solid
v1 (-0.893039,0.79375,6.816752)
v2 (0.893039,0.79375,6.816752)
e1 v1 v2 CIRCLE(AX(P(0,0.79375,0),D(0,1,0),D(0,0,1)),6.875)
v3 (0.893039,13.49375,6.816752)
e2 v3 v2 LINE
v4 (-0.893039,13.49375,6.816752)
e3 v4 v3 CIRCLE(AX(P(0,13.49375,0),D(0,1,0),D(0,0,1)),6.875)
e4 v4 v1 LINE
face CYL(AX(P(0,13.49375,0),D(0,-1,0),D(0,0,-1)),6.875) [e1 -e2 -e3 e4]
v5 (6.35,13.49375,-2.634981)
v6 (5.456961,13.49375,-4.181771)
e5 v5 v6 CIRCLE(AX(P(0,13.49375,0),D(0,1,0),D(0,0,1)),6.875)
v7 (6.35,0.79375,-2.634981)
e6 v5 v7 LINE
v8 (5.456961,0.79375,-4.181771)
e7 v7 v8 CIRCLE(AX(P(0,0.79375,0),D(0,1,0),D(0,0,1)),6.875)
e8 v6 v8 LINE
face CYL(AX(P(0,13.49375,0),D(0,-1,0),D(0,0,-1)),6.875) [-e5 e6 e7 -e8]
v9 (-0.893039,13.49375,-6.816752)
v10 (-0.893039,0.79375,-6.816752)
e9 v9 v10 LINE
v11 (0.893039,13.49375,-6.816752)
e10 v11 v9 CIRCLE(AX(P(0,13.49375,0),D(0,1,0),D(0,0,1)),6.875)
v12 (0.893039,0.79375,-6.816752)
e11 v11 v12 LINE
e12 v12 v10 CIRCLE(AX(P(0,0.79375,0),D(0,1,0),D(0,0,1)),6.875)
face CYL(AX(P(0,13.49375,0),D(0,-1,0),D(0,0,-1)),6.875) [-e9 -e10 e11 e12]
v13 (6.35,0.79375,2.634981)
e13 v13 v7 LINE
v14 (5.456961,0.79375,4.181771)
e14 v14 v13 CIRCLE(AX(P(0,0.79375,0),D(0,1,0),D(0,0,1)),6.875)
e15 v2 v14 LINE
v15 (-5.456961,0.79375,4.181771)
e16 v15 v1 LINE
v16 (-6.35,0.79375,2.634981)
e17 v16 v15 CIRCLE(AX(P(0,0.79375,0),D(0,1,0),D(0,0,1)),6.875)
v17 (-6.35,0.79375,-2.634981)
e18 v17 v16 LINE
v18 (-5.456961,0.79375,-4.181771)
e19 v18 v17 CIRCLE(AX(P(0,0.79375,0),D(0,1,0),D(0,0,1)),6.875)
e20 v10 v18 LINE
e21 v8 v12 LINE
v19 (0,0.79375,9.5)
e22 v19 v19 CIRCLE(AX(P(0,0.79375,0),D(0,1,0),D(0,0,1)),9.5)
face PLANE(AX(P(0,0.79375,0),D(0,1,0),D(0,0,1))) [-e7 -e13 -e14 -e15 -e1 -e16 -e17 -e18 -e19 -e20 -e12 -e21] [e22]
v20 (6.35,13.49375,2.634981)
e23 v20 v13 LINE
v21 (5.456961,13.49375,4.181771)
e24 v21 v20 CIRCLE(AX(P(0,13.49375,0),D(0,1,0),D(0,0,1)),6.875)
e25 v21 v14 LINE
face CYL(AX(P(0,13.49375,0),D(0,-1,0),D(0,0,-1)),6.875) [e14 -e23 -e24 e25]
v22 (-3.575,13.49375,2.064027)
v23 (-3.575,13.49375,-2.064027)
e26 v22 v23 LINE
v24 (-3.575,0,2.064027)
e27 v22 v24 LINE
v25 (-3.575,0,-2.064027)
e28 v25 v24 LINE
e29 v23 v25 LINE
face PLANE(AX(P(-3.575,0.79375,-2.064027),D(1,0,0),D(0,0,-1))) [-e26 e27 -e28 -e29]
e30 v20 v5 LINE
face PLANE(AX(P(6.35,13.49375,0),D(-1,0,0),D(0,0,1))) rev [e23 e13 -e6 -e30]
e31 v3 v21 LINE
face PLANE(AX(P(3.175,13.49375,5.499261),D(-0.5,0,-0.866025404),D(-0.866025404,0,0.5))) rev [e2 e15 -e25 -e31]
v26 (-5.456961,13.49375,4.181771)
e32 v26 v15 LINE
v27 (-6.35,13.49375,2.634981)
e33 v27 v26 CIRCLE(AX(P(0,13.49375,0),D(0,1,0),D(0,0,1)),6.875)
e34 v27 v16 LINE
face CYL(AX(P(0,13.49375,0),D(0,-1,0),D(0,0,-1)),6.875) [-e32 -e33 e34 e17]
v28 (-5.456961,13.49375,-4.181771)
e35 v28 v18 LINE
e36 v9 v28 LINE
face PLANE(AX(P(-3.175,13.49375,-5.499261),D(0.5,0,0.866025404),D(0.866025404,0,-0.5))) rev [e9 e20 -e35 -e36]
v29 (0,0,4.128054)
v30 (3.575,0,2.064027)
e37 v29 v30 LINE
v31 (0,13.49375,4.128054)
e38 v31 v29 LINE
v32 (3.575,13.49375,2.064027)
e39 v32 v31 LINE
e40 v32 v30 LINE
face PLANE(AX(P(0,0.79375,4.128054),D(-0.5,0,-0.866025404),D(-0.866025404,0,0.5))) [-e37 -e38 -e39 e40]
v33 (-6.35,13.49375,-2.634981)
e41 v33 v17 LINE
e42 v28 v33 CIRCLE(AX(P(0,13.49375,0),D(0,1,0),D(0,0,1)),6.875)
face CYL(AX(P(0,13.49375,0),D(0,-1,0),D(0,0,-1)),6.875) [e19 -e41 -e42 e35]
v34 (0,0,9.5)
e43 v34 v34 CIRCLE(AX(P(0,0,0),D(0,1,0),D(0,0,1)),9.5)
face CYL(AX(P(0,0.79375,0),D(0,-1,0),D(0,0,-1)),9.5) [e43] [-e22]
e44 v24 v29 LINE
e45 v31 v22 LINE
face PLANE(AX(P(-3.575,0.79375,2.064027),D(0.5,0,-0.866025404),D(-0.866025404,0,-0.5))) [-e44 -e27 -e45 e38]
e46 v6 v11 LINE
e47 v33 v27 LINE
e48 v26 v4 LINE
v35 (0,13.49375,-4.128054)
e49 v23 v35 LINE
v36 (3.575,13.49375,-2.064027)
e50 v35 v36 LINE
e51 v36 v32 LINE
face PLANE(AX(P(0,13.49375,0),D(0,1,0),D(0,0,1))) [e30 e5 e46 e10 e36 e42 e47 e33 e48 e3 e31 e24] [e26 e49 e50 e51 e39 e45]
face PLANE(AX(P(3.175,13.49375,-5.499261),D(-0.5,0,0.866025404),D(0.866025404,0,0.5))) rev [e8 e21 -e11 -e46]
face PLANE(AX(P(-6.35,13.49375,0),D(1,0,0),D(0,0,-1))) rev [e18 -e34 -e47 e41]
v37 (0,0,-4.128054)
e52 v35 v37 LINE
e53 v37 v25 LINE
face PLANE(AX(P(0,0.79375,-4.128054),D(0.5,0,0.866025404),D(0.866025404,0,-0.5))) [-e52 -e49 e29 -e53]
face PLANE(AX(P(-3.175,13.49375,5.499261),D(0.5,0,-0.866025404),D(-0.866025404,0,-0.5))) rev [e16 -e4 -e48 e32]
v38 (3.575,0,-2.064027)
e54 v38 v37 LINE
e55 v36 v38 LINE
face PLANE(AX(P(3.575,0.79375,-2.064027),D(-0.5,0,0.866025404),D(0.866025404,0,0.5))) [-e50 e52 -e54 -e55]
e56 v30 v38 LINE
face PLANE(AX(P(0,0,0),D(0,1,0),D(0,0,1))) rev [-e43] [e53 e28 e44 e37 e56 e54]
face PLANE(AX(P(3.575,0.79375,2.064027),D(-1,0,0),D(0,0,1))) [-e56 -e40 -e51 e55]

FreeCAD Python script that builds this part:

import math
import FreeCAD as App
import Part
import Sketcher
from FreeCAD import Vector
Q = App.Units.Quantity


def add_polygon(sketch, points):
    """Adds a closed chain of lines whose ends are joined by coincident constraints."""
    first, n = sketch.GeometryCount, len(points)
    for a, b in zip(points, points[1:] + points[:1]):
        sketch.addGeometry(Part.LineSegment(App.Vector(*a, 0), App.Vector(*b, 0)), False)
    for i in range(n):
        sketch.addConstraint(Sketcher.Constraint("Coincident", first + i, 2, first + (i + 1) % n, 1))

doc = App.newDocument("Part")
body = doc.addObject("PartDesign::Body", "Body")

# Sketch on XZ plane
sketch1 = body.newObject("Sketcher::SketchObject", "Sketch")
sketch1.AttachmentSupport = (doc.getObject("XZ_Plane"), [""])
sketch1.MapMode = "FlatFace"
sketch1.addGeometry(Part.Circle(Vector(0, 0, 0), Vector(0, 0, 1), 9.5), False)  # 0
add_polygon(sketch1, [(-3.6, -2.1), (0, -4.1), (3.6, -2.1), (3.6, 2.1), (0, 4.1), (-3.6, 2.1)])  # lines 1-6
sketch1.addConstraint([
    Sketcher.Constraint("Vertical", 3),
    Sketcher.Constraint("Vertical", 6),
    Sketcher.Constraint("Coincident", 0, 3, -1, 1),
    Sketcher.Constraint("Symmetric", 1, 2, 4, 2, -1, 1),
    Sketcher.Constraint("Symmetric", 2, 2, 5, 2, -1, 1),
    Sketcher.Constraint("PointOnObject", 1, 2, -2),
    Sketcher.Constraint("Parallel", 1, 4),
    Sketcher.Constraint("Horizontal", 3, 2, 5, 2),
    Sketcher.Constraint("Angle", 1, Q("-30 deg")),
    Sketcher.Constraint("Diameter", 0, 19.0),
    Sketcher.Constraint("DistanceX", -1, 1, 2, 2, 3.575),
    Sketcher.Constraint("DistanceY", 3, 1, 3, 2, 4.128054),
])
pad1 = body.newObject("PartDesign::Pad", "Pad")
pad1.Profile = sketch1
pad1.Length = Q("0.03125 in")
pad1.Reversed = True

# Sketch on XZ plane
sketch2 = body.newObject("Sketcher::SketchObject", "Sketch001")
sketch2.AttachmentSupport = (doc.getObject("XZ_Plane"), [""])
sketch2.MapMode = "FlatFace"
sketch2.AttachmentOffset = App.Placement(Vector(0, 0, -0.03125 * 25.4), App.Rotation())
sketch2.addGeometry(Part.ArcOfCircle(Part.Circle(Vector(0, 0, 0), Vector(0, 0, 1), 6.9), math.radians(-97.46), math.radians(-82.54)), False)  # 0
sketch2.addGeometry(Part.LineSegment(Vector(-0.9, -6.8, 0), Vector(-5.5, -4.2, 0)), False)  # 1
sketch2.addGeometry(Part.ArcOfCircle(Part.Circle(Vector(0, 0, 0), Vector(0, 0, 1), 6.9), math.radians(-157.46), math.radians(-142.54)), False)  # 2
sketch2.addGeometry(Part.LineSegment(Vector(-6.3, -2.6, 0), Vector(-6.3, 2.6, 0)), False)  # 3
sketch2.addGeometry(Part.ArcOfCircle(Part.Circle(Vector(0, 0, 0), Vector(0, 0, 1), 6.9), math.radians(142.54), math.radians(157.46)), False)  # 4
sketch2.addGeometry(Part.LineSegment(Vector(-5.5, 4.2, 0), Vector(-0.9, 6.8, 0)), False)  # 5
sketch2.addGeometry(Part.ArcOfCircle(Part.Circle(Vector(0, 0, 0), Vector(0, 0, 1), 6.9), math.radians(82.54), math.radians(97.46)), False)  # 6
sketch2.addGeometry(Part.LineSegment(Vector(0.9, 6.8, 0), Vector(5.5, 4.2, 0)), False)  # 7
sketch2.addGeometry(Part.ArcOfCircle(Part.Circle(Vector(0, 0, 0), Vector(0, 0, 1), 6.9), math.radians(22.54), math.radians(37.46)), False)  # 8
sketch2.addGeometry(Part.LineSegment(Vector(6.3, 2.6, 0), Vector(6.3, -2.6, 0)), False)  # 9
sketch2.addGeometry(Part.ArcOfCircle(Part.Circle(Vector(0, 0, 0), Vector(0, 0, 1), 6.9), math.radians(-37.46), math.radians(-22.54)), False)  # 10
sketch2.addGeometry(Part.LineSegment(Vector(5.5, -4.2, 0), Vector(0.9, -6.8, 0)), False)  # 11
add_polygon(sketch2, [(-3.6, 2.1), (-3.6, -2.1), (0, -4.1), (3.6, -2.1), (3.6, 2.1), (0, 4.1)])  # lines 12-17
sketch2.addConstraint([
    Sketcher.Constraint("Coincident", 0, 1, 1, 1),
    Sketcher.Constraint("Coincident", 1, 2, 2, 2),
    Sketcher.Constraint("Coincident", 2, 1, 3, 1),
    Sketcher.Constraint("Coincident", 3, 2, 4, 2),
    Sketcher.Constraint("Coincident", 4, 1, 5, 1),
    Sketcher.Constraint("Coincident", 5, 2, 6, 2),
    Sketcher.Constraint("Coincident", 6, 1, 7, 1),
    Sketcher.Constraint("Coincident", 7, 2, 8, 2),
    Sketcher.Constraint("Coincident", 8, 1, 9, 1),
    Sketcher.Constraint("Coincident", 9, 2, 10, 2),
    Sketcher.Constraint("Coincident", 10, 1, 11, 1),
    Sketcher.Constraint("Coincident", 11, 2, 0, 2),
    Sketcher.Constraint("Vertical", 3),
    Sketcher.Constraint("Vertical", 9),
    Sketcher.Constraint("Vertical", 12),
    Sketcher.Constraint("Vertical", 15),
    Sketcher.Constraint("Coincident", 0, 3, -1, 1),
    Sketcher.Constraint("Coincident", 2, 3, -1, 1),
    Sketcher.Constraint("Coincident", 4, 3, -1, 1),
    Sketcher.Constraint("Coincident", 6, 3, -1, 1),
    Sketcher.Constraint("Coincident", 8, 3, -1, 1),
    Sketcher.Constraint("Coincident", 10, 3, -1, 1),
    Sketcher.Constraint("Equal", 0, 2),
    Sketcher.Constraint("Equal", 2, 4),
    Sketcher.Constraint("Equal", 4, 6),
    Sketcher.Constraint("Equal", 6, 8),
    Sketcher.Constraint("Equal", 8, 10),
    Sketcher.Constraint("Symmetric", 12, 2, 15, 2, -1, 1),
    Sketcher.Constraint("Symmetric", 13, 2, 16, 2, -1, 1),
    Sketcher.Constraint("PointOnObject", 13, 2, -2),
    Sketcher.Constraint("Parallel", 1, 7),
    Sketcher.Constraint("Parallel", 5, 11),
    Sketcher.Constraint("Parallel", 7, 13),
    Sketcher.Constraint("Parallel", 11, 14),
    Sketcher.Constraint("Parallel", 14, 17),
    Sketcher.Constraint("Horizontal", 5, 2, 6, 1),
    Sketcher.Constraint("Horizontal", 4, 1, 7, 2),
    Sketcher.Constraint("Horizontal", 3, 2, 8, 1),
    Sketcher.Constraint("Horizontal", 1, 2, 10, 1),
    Sketcher.Constraint("Vertical", 1, 2, 4, 1),
    Sketcher.Constraint("Angle", 1, Q("150 deg")),
    Sketcher.Constraint("DistanceX", 2, 1, -1, 1, Q("0.25 in")),
    Sketcher.Constraint("Radius", 0, 6.875),
    Sketcher.Constraint("DistanceX", 4, 1, 6, 1, Q("0.25 in")),
    Sketcher.Constraint("DistanceX", 12, 2, -1, 1, 3.575),
    Sketcher.Constraint("DistanceY", 12, 2, 12, 1, 4.128054),
])
pad2 = body.newObject("PartDesign::Pad", "Pad001")
pad2.Profile = sketch2
pad2.Length = Q("0.5 in")
pad2.Reversed = True

doc.recompute()
